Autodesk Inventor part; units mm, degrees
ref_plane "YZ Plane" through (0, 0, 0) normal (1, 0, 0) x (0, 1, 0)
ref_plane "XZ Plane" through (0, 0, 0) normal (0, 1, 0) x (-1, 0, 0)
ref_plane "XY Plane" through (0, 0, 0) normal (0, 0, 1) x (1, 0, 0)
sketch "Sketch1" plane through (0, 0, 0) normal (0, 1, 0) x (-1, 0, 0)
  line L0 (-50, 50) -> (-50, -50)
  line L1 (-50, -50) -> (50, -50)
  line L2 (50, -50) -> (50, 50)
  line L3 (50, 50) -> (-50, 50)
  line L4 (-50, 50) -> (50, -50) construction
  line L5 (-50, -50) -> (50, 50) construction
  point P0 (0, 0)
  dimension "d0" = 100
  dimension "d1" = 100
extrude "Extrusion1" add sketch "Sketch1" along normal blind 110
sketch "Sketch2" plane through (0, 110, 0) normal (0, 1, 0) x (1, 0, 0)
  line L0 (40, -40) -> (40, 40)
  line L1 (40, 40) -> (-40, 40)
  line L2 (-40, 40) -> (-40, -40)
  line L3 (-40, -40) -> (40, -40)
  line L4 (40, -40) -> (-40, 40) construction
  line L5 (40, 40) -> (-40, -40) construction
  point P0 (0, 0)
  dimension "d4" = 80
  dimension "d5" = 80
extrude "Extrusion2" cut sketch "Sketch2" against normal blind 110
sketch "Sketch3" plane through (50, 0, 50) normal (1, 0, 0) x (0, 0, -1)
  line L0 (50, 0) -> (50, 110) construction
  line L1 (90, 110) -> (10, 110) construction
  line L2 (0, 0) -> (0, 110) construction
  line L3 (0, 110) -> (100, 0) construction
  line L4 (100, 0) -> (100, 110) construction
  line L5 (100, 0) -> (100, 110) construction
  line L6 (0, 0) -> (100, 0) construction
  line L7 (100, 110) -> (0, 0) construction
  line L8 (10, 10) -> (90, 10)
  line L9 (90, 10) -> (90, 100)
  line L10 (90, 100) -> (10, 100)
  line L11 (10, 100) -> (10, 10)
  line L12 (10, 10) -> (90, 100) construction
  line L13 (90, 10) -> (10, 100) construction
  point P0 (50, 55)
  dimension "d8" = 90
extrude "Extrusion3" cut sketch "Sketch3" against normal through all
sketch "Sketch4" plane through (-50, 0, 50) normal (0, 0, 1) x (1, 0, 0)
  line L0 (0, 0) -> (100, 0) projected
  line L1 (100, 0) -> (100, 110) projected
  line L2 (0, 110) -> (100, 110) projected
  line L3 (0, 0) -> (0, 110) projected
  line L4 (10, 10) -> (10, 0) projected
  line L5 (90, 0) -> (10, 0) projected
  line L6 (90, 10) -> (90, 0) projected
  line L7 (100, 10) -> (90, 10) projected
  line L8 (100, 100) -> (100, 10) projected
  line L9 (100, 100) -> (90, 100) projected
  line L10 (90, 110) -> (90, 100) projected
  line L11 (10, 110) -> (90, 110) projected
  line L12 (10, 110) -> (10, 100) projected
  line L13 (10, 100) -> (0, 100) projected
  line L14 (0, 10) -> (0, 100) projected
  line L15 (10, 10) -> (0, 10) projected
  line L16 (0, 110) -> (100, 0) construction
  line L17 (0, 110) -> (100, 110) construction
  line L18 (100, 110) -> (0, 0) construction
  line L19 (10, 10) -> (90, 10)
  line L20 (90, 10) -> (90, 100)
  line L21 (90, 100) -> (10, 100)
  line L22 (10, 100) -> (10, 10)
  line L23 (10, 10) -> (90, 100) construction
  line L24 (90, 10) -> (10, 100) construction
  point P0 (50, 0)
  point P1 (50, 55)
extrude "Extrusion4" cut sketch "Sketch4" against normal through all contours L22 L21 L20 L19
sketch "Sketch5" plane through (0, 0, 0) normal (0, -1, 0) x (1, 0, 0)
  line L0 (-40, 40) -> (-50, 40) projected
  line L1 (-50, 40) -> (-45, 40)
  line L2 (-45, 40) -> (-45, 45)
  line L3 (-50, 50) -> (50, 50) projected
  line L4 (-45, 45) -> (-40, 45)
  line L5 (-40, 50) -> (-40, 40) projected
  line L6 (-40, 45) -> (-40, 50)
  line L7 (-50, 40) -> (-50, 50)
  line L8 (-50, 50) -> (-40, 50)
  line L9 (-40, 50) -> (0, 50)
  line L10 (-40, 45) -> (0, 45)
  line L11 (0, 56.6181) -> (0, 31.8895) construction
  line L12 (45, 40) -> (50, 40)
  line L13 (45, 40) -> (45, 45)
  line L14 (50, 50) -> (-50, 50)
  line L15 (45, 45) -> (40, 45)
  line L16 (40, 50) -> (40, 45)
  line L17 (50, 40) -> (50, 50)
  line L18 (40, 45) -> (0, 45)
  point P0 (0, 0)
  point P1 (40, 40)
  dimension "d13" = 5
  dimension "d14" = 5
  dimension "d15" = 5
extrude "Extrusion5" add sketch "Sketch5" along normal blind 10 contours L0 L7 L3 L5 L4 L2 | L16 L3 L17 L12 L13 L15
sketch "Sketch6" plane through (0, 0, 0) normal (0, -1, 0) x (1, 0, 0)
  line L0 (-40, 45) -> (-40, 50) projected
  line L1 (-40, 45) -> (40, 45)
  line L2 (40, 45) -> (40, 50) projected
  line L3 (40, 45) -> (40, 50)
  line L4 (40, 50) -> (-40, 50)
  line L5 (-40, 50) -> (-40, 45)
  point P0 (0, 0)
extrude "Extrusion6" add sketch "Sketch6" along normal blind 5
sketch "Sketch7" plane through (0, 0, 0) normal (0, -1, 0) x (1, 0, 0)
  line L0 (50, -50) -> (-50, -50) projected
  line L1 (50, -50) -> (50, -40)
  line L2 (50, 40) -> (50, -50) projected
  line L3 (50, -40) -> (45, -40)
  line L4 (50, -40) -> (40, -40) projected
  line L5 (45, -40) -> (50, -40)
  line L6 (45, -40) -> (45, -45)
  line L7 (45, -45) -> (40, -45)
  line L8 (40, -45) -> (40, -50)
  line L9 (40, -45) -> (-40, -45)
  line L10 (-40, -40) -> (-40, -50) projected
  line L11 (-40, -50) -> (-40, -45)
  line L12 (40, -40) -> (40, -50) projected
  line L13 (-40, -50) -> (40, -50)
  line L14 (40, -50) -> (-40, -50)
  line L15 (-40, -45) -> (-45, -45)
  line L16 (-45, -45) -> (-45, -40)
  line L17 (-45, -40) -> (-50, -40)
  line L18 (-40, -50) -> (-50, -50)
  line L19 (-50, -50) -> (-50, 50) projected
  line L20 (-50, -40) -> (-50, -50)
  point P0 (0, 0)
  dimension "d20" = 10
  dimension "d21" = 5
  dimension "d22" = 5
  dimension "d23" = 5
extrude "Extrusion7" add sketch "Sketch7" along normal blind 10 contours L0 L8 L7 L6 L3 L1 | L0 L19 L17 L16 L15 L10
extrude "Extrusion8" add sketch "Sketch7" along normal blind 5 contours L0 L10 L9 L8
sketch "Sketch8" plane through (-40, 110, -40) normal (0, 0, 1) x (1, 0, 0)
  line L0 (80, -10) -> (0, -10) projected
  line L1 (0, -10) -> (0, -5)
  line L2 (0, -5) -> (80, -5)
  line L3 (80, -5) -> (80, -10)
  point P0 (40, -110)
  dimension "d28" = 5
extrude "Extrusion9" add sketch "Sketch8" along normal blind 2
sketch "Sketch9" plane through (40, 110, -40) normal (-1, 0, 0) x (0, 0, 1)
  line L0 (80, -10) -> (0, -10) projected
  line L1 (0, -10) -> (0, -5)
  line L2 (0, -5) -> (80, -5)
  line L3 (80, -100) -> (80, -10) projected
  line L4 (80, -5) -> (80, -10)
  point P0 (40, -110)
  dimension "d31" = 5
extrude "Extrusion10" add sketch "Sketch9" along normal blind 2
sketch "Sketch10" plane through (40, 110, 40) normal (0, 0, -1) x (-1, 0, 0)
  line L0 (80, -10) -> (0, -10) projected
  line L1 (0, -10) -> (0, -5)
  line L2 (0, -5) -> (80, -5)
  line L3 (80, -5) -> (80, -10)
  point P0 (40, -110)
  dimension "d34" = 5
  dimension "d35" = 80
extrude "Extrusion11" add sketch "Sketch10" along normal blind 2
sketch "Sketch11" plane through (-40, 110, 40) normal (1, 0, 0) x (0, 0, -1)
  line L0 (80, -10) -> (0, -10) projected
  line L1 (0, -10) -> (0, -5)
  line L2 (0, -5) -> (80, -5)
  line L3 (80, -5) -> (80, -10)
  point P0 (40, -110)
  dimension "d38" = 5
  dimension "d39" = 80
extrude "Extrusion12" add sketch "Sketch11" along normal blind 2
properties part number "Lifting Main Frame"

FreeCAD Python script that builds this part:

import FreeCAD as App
import Part
import Sketcher
Q = App.Units.Quantity

doc = App.newDocument("Part")
body = doc.addObject("PartDesign::Body", "Body")

# Sketch on XZ plane
sketch1 = body.newObject("Sketcher::SketchObject", "Sketch")
sketch1.AttachmentSupport = (doc.getObject("XZ_Plane"), [""])
sketch1.MapMode = "FlatFace"
sketch1.addGeometry([
    Part.LineSegment(App.Vector(-50, 50, 0), App.Vector(50, 50, 0)),
    Part.LineSegment(App.Vector(50, 50, 0), App.Vector(50, -50, 0)),
    Part.LineSegment(App.Vector(50, -50, 0), App.Vector(-50, -50, 0)),
    Part.LineSegment(App.Vector(-50, -50, 0), App.Vector(-50, 50, 0)),
], False)
sketch1.addConstraint([
    Sketcher.Constraint("Coincident", 0, 2, 1, 1),
    Sketcher.Constraint("Coincident", 1, 2, 2, 1),
    Sketcher.Constraint("Coincident", 2, 2, 3, 1),
    Sketcher.Constraint("Coincident", 3, 2, 0, 1),
    Sketcher.Constraint("Horizontal", 0),
    Sketcher.Constraint("Vertical", 1),
    Sketcher.Constraint("Horizontal", 2),
    Sketcher.Constraint("Vertical", 3),
    Sketcher.Constraint("Symmetric", 0, 2, 2, 2, -1, 1),
    Sketcher.Constraint("Equal", 2, 1),
    Sketcher.Constraint("DistanceX", 0, 1, 0, 2, Q("100 mm")),
])
pad1 = body.newObject("PartDesign::Pad", "Pad")
pad1.Profile = sketch1
pad1.Length = 110
pad1.Reversed = True

# Sketch on XZ plane
sketch2 = body.newObject("Sketcher::SketchObject", "Sketch001")
sketch2.AttachmentSupport = (doc.getObject("XZ_Plane"), [""])
sketch2.MapMode = "FlatFace"
sketch2.AttachmentOffset = App.Placement(App.Vector(0, 0, -110), App.Rotation())
sketch2.addGeometry([
    Part.LineSegment(App.Vector(-40, 40, 0), App.Vector(40, 40, 0)),
    Part.LineSegment(App.Vector(40, 40, 0), App.Vector(40, -40, 0)),
    Part.LineSegment(App.Vector(40, -40, 0), App.Vector(-40, -40, 0)),
    Part.LineSegment(App.Vector(-40, -40, 0), App.Vector(-40, 40, 0)),
], False)
sketch2.addConstraint([
    Sketcher.Constraint("Coincident", 0, 2, 1, 1),
    Sketcher.Constraint("Coincident", 1, 2, 2, 1),
    Sketcher.Constraint("Coincident", 2, 2, 3, 1),
    Sketcher.Constraint("Coincident", 3, 2, 0, 1),
    Sketcher.Constraint("Horizontal", 0),
    Sketcher.Constraint("Vertical", 1),
    Sketcher.Constraint("Horizontal", 2),
    Sketcher.Constraint("Vertical", 3),
    Sketcher.Constraint("Symmetric", 0, 2, 2, 2, -1, 1),
    Sketcher.Constraint("Equal", 2, 1),
    Sketcher.Constraint("DistanceX", 0, 1, 0, 2, Q("80 mm")),
])
pocket1 = body.newObject("PartDesign::Pocket", "Pocket")
pocket1.Profile = sketch2
pocket1.Length = 110
pocket1.Reversed = True

# Sketch on YZ plane
sketch3 = body.newObject("Sketcher::SketchObject", "Sketch002")
sketch3.AttachmentSupport = (doc.getObject("YZ_Plane"), [""])
sketch3.MapMode = "FlatFace"
sketch3.AttachmentOffset = App.Placement(App.Vector(0, 0, 50), App.Rotation())
sketch3.addGeometry([
    Part.LineSegment(App.Vector(100, 40, 0), App.Vector(10, 40, 0)),
    Part.LineSegment(App.Vector(10, 40, 0), App.Vector(10, -40, 0)),
    Part.LineSegment(App.Vector(10, -40, 0), App.Vector(100, -40, 0)),
    Part.LineSegment(App.Vector(100, -40, 0), App.Vector(100, 40, 0)),
], False)
sketch3.addConstraint([
    Sketcher.Constraint("Coincident", 0, 2, 1, 1),
    Sketcher.Constraint("Coincident", 1, 2, 2, 1),
    Sketcher.Constraint("Coincident", 2, 2, 3, 1),
    Sketcher.Constraint("Coincident", 3, 2, 0, 1),
    Sketcher.Constraint("Horizontal", 0),
    Sketcher.Constraint("Vertical", 1),
    Sketcher.Constraint("Horizontal", 2),
    Sketcher.Constraint("Vertical", 3),
    Sketcher.Constraint("DistanceX", 0, 2, 0, 1, Q("90 mm")),
    Sketcher.Constraint("DistanceY", 1, 2, 1, 1, Q("80 mm")),
    Sketcher.Constraint("DistanceX", -1, 1, 0, 2, Q("10 mm")),
    Sketcher.Constraint("DistanceY", -1, 1, 0, 2, Q("40 mm")),
])
pocket2 = body.newObject("PartDesign::Pocket", "Pocket001")
pocket2.Profile = sketch3
pocket2.Type = "ThroughAll"

# Sketch on XY plane
sketch4 = body.newObject("Sketcher::SketchObject", "Sketch003")
sketch4.AttachmentSupport = (doc.getObject("XY_Plane"), [""])
sketch4.MapMode = "FlatFace"
sketch4.AttachmentOffset = App.Placement(App.Vector(0, 0, 50), App.Rotation())
sketch4.addGeometry([
    Part.LineSegment(App.Vector(-40, 100, 0), App.Vector(-40, 10, 0)),
    Part.LineSegment(App.Vector(-40, 10, 0), App.Vector(40, 10, 0)),
    Part.LineSegment(App.Vector(40, 10, 0), App.Vector(40, 100, 0)),
    Part.LineSegment(App.Vector(40, 100, 0), App.Vector(-40, 100, 0)),
], False)
sketch4.addConstraint([
    Sketcher.Constraint("Coincident", 0, 2, 1, 1),
    Sketcher.Constraint("Coincident", 1, 2, 2, 1),
    Sketcher.Constraint("Coincident", 2, 2, 3, 1),
    Sketcher.Constraint("Coincident", 3, 2, 0, 1),
    Sketcher.Constraint("Vertical", 0),
    Sketcher.Constraint("Horizontal", 1),
    Sketcher.Constraint("Vertical", 2),
    Sketcher.Constraint("Horizontal", 3),
    Sketcher.Constraint("DistanceX", 1, 1, 1, 2, Q("80 mm")),
    Sketcher.Constraint("DistanceY", 0, 2, 0, 1, Q("90 mm")),
    Sketcher.Constraint("DistanceX", 0, 2, -1, 1, Q("40 mm")),
    Sketcher.Constraint("DistanceY", -1, 1, 0, 2, Q("10 mm")),
])
pocket3 = body.newObject("PartDesign::Pocket", "Pocket002")
pocket3.Profile = sketch4
pocket3.Type = "ThroughAll"

# Sketch on XZ plane
sketch5 = body.newObject("Sketcher::SketchObject", "Sketch004")
sketch5.AttachmentSupport = (doc.getObject("XZ_Plane"), [""])
sketch5.MapMode = "FlatFace"
sketch5.addGeometry([
    Part.LineSegment(App.Vector(-50, 40, 0), App.Vector(-45, 40, 0)),  # 0
    Part.LineSegment(App.Vector(-45, 40, 0), App.Vector(-45, 45, 0)),  # 1
    Part.LineSegment(App.Vector(-45, 45, 0), App.Vector(-40, 45, 0)),  # 2
    Part.LineSegment(App.Vector(-40, 45, 0), App.Vector(-40, 50, 0)),  # 3
    Part.LineSegment(App.Vector(-40, 50, 0), App.Vector(-50, 50, 0)),  # 4
    Part.LineSegment(App.Vector(-50, 50, 0), App.Vector(-50, 40, 0)),  # 5
    Part.LineSegment(App.Vector(40, 50, 0), App.Vector(40, 45, 0)),  # 6
    Part.LineSegment(App.Vector(40, 45, 0), App.Vector(45, 45, 0)),  # 7
    Part.LineSegment(App.Vector(45, 45, 0), App.Vector(45, 40, 0)),  # 8
    Part.LineSegment(App.Vector(45, 40, 0), App.Vector(50, 40, 0)),  # 9
    Part.LineSegment(App.Vector(50, 40, 0), App.Vector(50, 50, 0)),  # 10
    Part.LineSegment(App.Vector(50, 50, 0), App.Vector(40, 50, 0)),  # 11
], False)
sketch5.addConstraint([
    Sketcher.Constraint("Coincident", 0, 2, 1, 1),
    Sketcher.Constraint("Coincident", 1, 2, 2, 1),
    Sketcher.Constraint("Coincident", 2, 2, 3, 1),
    Sketcher.Constraint("Coincident", 3, 2, 4, 1),
    Sketcher.Constraint("Coincident", 4, 2, 5, 1),
    Sketcher.Constraint("Coincident", 5, 2, 0, 1),
    Sketcher.Constraint("Coincident", 6, 2, 7, 1),
    Sketcher.Constraint("Coincident", 7, 2, 8, 1),
    Sketcher.Constraint("Coincident", 8, 2, 9, 1),
    Sketcher.Constraint("Coincident", 9, 2, 10, 1),
    Sketcher.Constraint("Coincident", 10, 2, 11, 1),
    Sketcher.Constraint("Coincident", 11, 2, 6, 1),
    Sketcher.Constraint("Horizontal", 0),
    Sketcher.Constraint("Vertical", 1),
    Sketcher.Constraint("Horizontal", 2),
    Sketcher.Constraint("Vertical", 3),
    Sketcher.Constraint("Horizontal", 4),
    Sketcher.Constraint("Vertical", 5),
    Sketcher.Constraint("Vertical", 6),
    Sketcher.Constraint("Horizontal", 7),
    Sketcher.Constraint("Vertical", 8),
    Sketcher.Constraint("Horizontal", 9),
    Sketcher.Constraint("Vertical", 10),
    Sketcher.Constraint("Horizontal", 11),
    Sketcher.Constraint("Symmetric", 2, 2, 6, 2, -2),
    Sketcher.Constraint("Symmetric", 0, 2, 8, 2, -2),
    Sketcher.Constraint("Symmetric", 4, 2, 10, 2, -2),
    Sketcher.Constraint("Equal", 0, 2),
    Sketcher.Constraint("Equal", 9, 1),
    Sketcher.Constraint("Equal", 1, 3),
    Sketcher.Constraint("DistanceX", 0, 1, 0, 2, Q("5 mm")),
    Sketcher.Constraint("DistanceX", 0, 2, -1, 1, Q("45 mm")),
    Sketcher.Constraint("DistanceY", -1, 1, 0, 2, Q("40 mm")),
])
pad2 = body.newObject("PartDesign::Pad", "Pad001")
pad2.Profile = sketch5
pad2.Length = 10

# Sketch on XZ plane
sketch6 = body.newObject("Sketcher::SketchObject", "Sketch005")
sketch6.AttachmentSupport = (doc.getObject("XZ_Plane"), [""])
sketch6.MapMode = "FlatFace"
sketch6.addGeometry([
    Part.LineSegment(App.Vector(-40, 50, 0), App.Vector(-40, 45, 0)),
    Part.LineSegment(App.Vector(-40, 45, 0), App.Vector(40, 45, 0)),
    Part.LineSegment(App.Vector(40, 45, 0), App.Vector(40, 50, 0)),
    Part.LineSegment(App.Vector(40, 50, 0), App.Vector(-40, 50, 0)),
], False)
sketch6.addConstraint([
    Sketcher.Constraint("Coincident", 0, 2, 1, 1),
    Sketcher.Constraint("Coincident", 1, 2, 2, 1),
    Sketcher.Constraint("Coincident", 2, 2, 3, 1),
    Sketcher.Constraint("Coincident", 3, 2, 0, 1),
    Sketcher.Constraint("Vertical", 0),
    Sketcher.Constraint("Horizontal", 1),
    Sketcher.Constraint("Vertical", 2),
    Sketcher.Constraint("Horizontal", 3),
    Sketcher.Constraint("DistanceX", 1, 1, 1, 2, Q("80 mm")),
    Sketcher.Constraint("DistanceY", 0, 2, 0, 1, Q("5 mm")),
    Sketcher.Constraint("DistanceX", 0, 2, -1, 1, Q("40 mm")),
    Sketcher.Constraint("DistanceY", -1, 1, 0, 2, Q("45 mm")),
])
pad3 = body.newObject("PartDesign::Pad", "Pad002")
pad3.Profile = sketch6
pad3.Length = 5

# Sketch on XZ plane
sketch7 = body.newObject("Sketcher::SketchObject", "Sketch006")
sketch7.AttachmentSupport = (doc.getObject("XZ_Plane"), [""])
sketch7.MapMode = "FlatFace"
sketch7.addGeometry([
    Part.LineSegment(App.Vector(40, -50, 0), App.Vector(50, -50, 0)),  # 0
    Part.LineSegment(App.Vector(50, -50, 0), App.Vector(50, -40, 0)),  # 1
    Part.LineSegment(App.Vector(50, -40, 0), App.Vector(45, -40, 0)),  # 2
    Part.LineSegment(App.Vector(45, -40, 0), App.Vector(45, -45, 0)),  # 3
    Part.LineSegment(App.Vector(45, -45, 0), App.Vector(40, -45, 0)),  # 4
    Part.LineSegment(App.Vector(40, -45, 0), App.Vector(40, -50, 0)),  # 5
    Part.LineSegment(App.Vector(-50, -50, 0), App.Vector(-40, -50, 0)),  # 6
    Part.LineSegment(App.Vector(-40, -50, 0), App.Vector(-40, -45, 0)),  # 7
    Part.LineSegment(App.Vector(-40, -45, 0), App.Vector(-45, -45, 0)),  # 8
    Part.LineSegment(App.Vector(-45, -45, 0), App.Vector(-45, -40, 0)),  # 9
    Part.LineSegment(App.Vector(-45, -40, 0), App.Vector(-50, -40, 0)),  # 10
    Part.LineSegment(App.Vector(-50, -40, 0), App.Vector(-50, -50, 0)),  # 11
], False)
sketch7.addConstraint([
    Sketcher.Constraint("Coincident", 0, 2, 1, 1),
    Sketcher.Constraint("Coincident", 1, 2, 2, 1),
    Sketcher.Constraint("Coincident", 2, 2, 3, 1),
    Sketcher.Constraint("Coincident", 3, 2, 4, 1),
    Sketcher.Constraint("Coincident", 4, 2, 5, 1),
    Sketcher.Constraint("Coincident", 5, 2, 0, 1),
    Sketcher.Constraint("Coincident", 6, 2, 7, 1),
    Sketcher.Constraint("Coincident", 7, 2, 8, 1),
    Sketcher.Constraint("Coincident", 8, 2, 9, 1),
    Sketcher.Constraint("Coincident", 9, 2, 10, 1),
    Sketcher.Constraint("Coincident", 10, 2, 11, 1),
    Sketcher.Constraint("Coincident", 11, 2, 6, 1),
    Sketcher.Constraint("Horizontal", 0),
    Sketcher.Constraint("Vertical", 1),
    Sketcher.Constraint("Horizontal", 2),
    Sketcher.Constraint("Vertical", 3),
    Sketcher.Constraint("Horizontal", 4),
    Sketcher.Constraint("Vertical", 5),
    Sketcher.Constraint("Horizontal", 6),
    Sketcher.Constraint("Vertical", 7),
    Sketcher.Constraint("Horizontal", 8),
    Sketcher.Constraint("Vertical", 9),
    Sketcher.Constraint("Horizontal", 10),
    Sketcher.Constraint("Vertical", 11),
    Sketcher.Constraint("Symmetric", 5, 2, 6, 2, -2),
    Sketcher.Constraint("Symmetric", 3, 2, 8, 2, -2),
    Sketcher.Constraint("Symmetric", 1, 2, 10, 2, -2),
    Sketcher.Constraint("Equal", 2, 4),
    Sketcher.Constraint("Equal", 6, 1),
    Sketcher.Constraint("Equal", 10, 3),
    Sketcher.Constraint("DistanceX", 0, 1, 0, 2, Q("10 mm")),
    Sketcher.Constraint("DistanceX", -1, 1, 0, 2, Q("50 mm")),
    Sketcher.Constraint("DistanceY", 0, 2, -1, 1, Q("50 mm")),
])
pad4 = body.newObject("PartDesign::Pad", "Pad003")
pad4.Profile = sketch7
pad4.Length = 10

# Sketch on XZ plane
sketch8 = body.newObject("Sketcher::SketchObject", "Sketch007")
sketch8.AttachmentSupport = (doc.getObject("XZ_Plane"), [""])
sketch8.MapMode = "FlatFace"
sketch8.addGeometry([
    Part.LineSegment(App.Vector(-40, -50, 0), App.Vector(40, -50, 0)),
    Part.LineSegment(App.Vector(40, -50, 0), App.Vector(40, -45, 0)),
    Part.LineSegment(App.Vector(40, -45, 0), App.Vector(-40, -45, 0)),
    Part.LineSegment(App.Vector(-40, -45, 0), App.Vector(-40, -50, 0)),
], False)
sketch8.addConstraint([
    Sketcher.Constraint("Coincident", 0, 2, 1, 1),
    Sketcher.Constraint("Coincident", 1, 2, 2, 1),
    Sketcher.Constraint("Coincident", 2, 2, 3, 1),
    Sketcher.Constraint("Coincident", 3, 2, 0, 1),
    Sketcher.Constraint("Horizontal", 0),
    Sketcher.Constraint("Vertical", 1),
    Sketcher.Constraint("Horizontal", 2),
    Sketcher.Constraint("Vertical", 3),
    Sketcher.Constraint("DistanceY", 1, 1, 1, 2, Q("5 mm")),
    Sketcher.Constraint("DistanceX", 0, 1, 0, 2, Q("80 mm")),
    Sketcher.Constraint("DistanceX", -1, 1, 0, 2, Q("40 mm")),
    Sketcher.Constraint("DistanceY", 0, 2, -1, 1, Q("50 mm")),
])
pad5 = body.newObject("PartDesign::Pad", "Pad004")
pad5.Profile = sketch8
pad5.Length = 5

# Sketch on XY plane
sketch9 = body.newObject("Sketcher::SketchObject", "Sketch008")
sketch9.AttachmentSupport = (doc.getObject("XY_Plane"), [""])
sketch9.MapMode = "FlatFace"
sketch9.AttachmentOffset = App.Placement(App.Vector(0, 0, -40), App.Rotation())
sketch9.addGeometry([
    Part.LineSegment(App.Vector(-40, 100, 0), App.Vector(40, 100, 0)),
    Part.LineSegment(App.Vector(40, 100, 0), App.Vector(40, 105, 0)),
    Part.LineSegment(App.Vector(40, 105, 0), App.Vector(-40, 105, 0)),
    Part.LineSegment(App.Vector(-40, 105, 0), App.Vector(-40, 100, 0)),
], False)
sketch9.addConstraint([
    Sketcher.Constraint("Coincident", 0, 2, 1, 1),
    Sketcher.Constraint("Coincident", 1, 2, 2, 1),
    Sketcher.Constraint("Coincident", 2, 2, 3, 1),
    Sketcher.Constraint("Coincident", 3, 2, 0, 1),
    Sketcher.Constraint("Horizontal", 0),
    Sketcher.Constraint("Vertical", 1),
    Sketcher.Constraint("Horizontal", 2),
    Sketcher.Constraint("Vertical", 3),
    Sketcher.Constraint("DistanceY", 1, 1, 1, 2, Q("5 mm")),
    Sketcher.Constraint("DistanceX", 0, 1, 0, 2, Q("80 mm")),
    Sketcher.Constraint("DistanceX", -1, 1, 0, 2, Q("40 mm")),
    Sketcher.Constraint("DistanceY", -1, 1, 0, 2, Q("100 mm")),
])
pad6 = body.newObject("PartDesign::Pad", "Pad005")
pad6.Profile = sketch9
pad6.Length = 2

# Sketch on YZ plane
sketch10 = body.newObject("Sketcher::SketchObject", "Sketch009")
sketch10.AttachmentSupport = (doc.getObject("YZ_Plane"), [""])
sketch10.MapMode = "FlatFace"
sketch10.AttachmentOffset = App.Placement(App.Vector(0, 0, 40), App.Rotation())
sketch10.addGeometry([
    Part.LineSegment(App.Vector(100, -40, 0), App.Vector(100, 40, 0)),
    Part.LineSegment(App.Vector(100, 40, 0), App.Vector(105, 40, 0)),
    Part.LineSegment(App.Vector(105, 40, 0), App.Vector(105, -40, 0)),
    Part.LineSegment(App.Vector(105, -40, 0), App.Vector(100, -40, 0)),
], False)
sketch10.addConstraint([
    Sketcher.Constraint("Coincident", 0, 2, 1, 1),
    Sketcher.Constraint("Coincident", 1, 2, 2, 1),
    Sketcher.Constraint("Coincident", 2, 2, 3, 1),
    Sketcher.Constraint("Coincident", 3, 2, 0, 1),
    Sketcher.Constraint("Vertical", 0),
    Sketcher.Constraint("Horizontal", 1),
    Sketcher.Constraint("Vertical", 2),
    Sketcher.Constraint("Horizontal", 3),
    Sketcher.Constraint("DistanceX", 1, 1, 1, 2, Q("5 mm")),
    Sketcher.Constraint("DistanceY", 0, 1, 0, 2, Q("80 mm")),
    Sketcher.Constraint("DistanceX", -1, 1, 0, 2, Q("100 mm")),
    Sketcher.Constraint("DistanceY", -1, 1, 0, 2, Q("40 mm")),
])
pad7 = body.newObject("PartDesign::Pad", "Pad006")
pad7.Profile = sketch10
pad7.Length = 2
pad7.Reversed = True

# Sketch on XY plane
sketch11 = body.newObject("Sketcher::SketchObject", "Sketch010")
sketch11.AttachmentSupport = (doc.getObject("XY_Plane"), [""])
sketch11.MapMode = "FlatFace"
sketch11.AttachmentOffset = App.Placement(App.Vector(0, 0, 40), App.Rotation())
sketch11.addGeometry([
    Part.LineSegment(App.Vector(40, 100, 0), App.Vector(-40, 100, 0)),
    Part.LineSegment(App.Vector(-40, 100, 0), App.Vector(-40, 105, 0)),
    Part.LineSegment(App.Vector(-40, 105, 0), App.Vector(40, 105, 0)),
    Part.LineSegment(App.Vector(40, 105, 0), App.Vector(40, 100, 0)),
], False)
sketch11.addConstraint([
    Sketcher.Constraint("Coincident", 0, 2, 1, 1),
    Sketcher.Constraint("Coincident", 1, 2, 2, 1),
    Sketcher.Constraint("Coincident", 2, 2, 3, 1),
    Sketcher.Constraint("Coincident", 3, 2, 0, 1),
    Sketcher.Constraint("Horizontal", 0),
    Sketcher.Constraint("Vertical", 1),
    Sketcher.Constraint("Horizontal", 2),
    Sketcher.Constraint("Vertical", 3),
    Sketcher.Constraint("DistanceX", 0, 2, 0, 1, Q("80 mm")),
    Sketcher.Constraint("DistanceY", 1, 1, 1, 2, Q("5 mm")),
    Sketcher.Constraint("DistanceX", 0, 2, -1, 1, Q("40 mm")),
    Sketcher.Constraint("DistanceY", -1, 1, 0, 2, Q("100 mm")),
])
pad8 = body.newObject("PartDesign::Pad", "Pad007")
pad8.Profile = sketch11
pad8.Length = 2
pad8.Reversed = True

# Sketch on YZ plane
sketch12 = body.newObject("Sketcher::SketchObject", "Sketch011")
sketch12.AttachmentSupport = (doc.getObject("YZ_Plane"), [""])
sketch12.MapMode = "FlatFace"
sketch12.AttachmentOffset = App.Placement(App.Vector(0, 0, -40), App.Rotation())
sketch12.addGeometry([
    Part.LineSegment(App.Vector(100, 40, 0), App.Vector(100, -40, 0)),
    Part.LineSegment(App.Vector(100, -40, 0), App.Vector(105, -40, 0)),
    Part.LineSegment(App.Vector(105, -40, 0), App.Vector(105, 40, 0)),
    Part.LineSegment(App.Vector(105, 40, 0), App.Vector(100, 40, 0)),
], False)
sketch12.addConstraint([
    Sketcher.Constraint("Coincident", 0, 2, 1, 1),
    Sketcher.Constraint("Coincident", 1, 2, 2, 1),
    Sketcher.Constraint("Coincident", 2, 2, 3, 1),
    Sketcher.Constraint("Coincident", 3, 2, 0, 1),
    Sketcher.Constraint("Vertical", 0),
    Sketcher.Constraint("Horizontal", 1),
    Sketcher.Constraint("Vertical", 2),
    Sketcher.Constraint("Horizontal", 3),
    Sketcher.Constraint("DistanceX", 1, 1, 1, 2, Q("5 mm")),
    Sketcher.Constraint("DistanceY", 0, 2, 0, 1, Q("80 mm")),
    Sketcher.Constraint("DistanceX", -1, 1, 0, 2, Q("100 mm")),
    Sketcher.Constraint("DistanceY", 0, 2, -1, 1, Q("40 mm")),
])
pad9 = body.newObject("PartDesign::Pad", "Pad008")
pad9.Profile = sketch12
pad9.Length = 2

doc.recompute()
